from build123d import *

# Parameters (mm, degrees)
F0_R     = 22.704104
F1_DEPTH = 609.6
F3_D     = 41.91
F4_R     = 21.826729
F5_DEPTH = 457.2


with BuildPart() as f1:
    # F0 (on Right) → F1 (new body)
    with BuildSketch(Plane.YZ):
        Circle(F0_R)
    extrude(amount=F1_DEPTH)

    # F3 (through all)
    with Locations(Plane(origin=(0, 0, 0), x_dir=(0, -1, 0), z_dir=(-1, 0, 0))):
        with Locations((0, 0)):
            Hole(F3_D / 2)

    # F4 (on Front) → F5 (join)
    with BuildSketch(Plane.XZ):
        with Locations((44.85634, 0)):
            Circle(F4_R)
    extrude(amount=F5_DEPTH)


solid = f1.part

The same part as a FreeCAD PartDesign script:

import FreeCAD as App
import Part
import Sketcher

V = App.Vector
Q = App.Units.Quantity

doc = App.newDocument("Part")
params = doc.addObject("Spreadsheet::Sheet", "Params")
for row, (alias, value) in enumerate([
    ("pad1_length", "24 in"),
    ("sketch2_diameter", "1.65 in"),
    ("hole_diameter", "1.65 in"),
    ("pad2_length", "18 in"),
], start=1):
    params.set(f"A{row}", alias)
    params.set(f"B{row}", "=" + value)
    params.setAlias(f"B{row}", alias)

body = doc.addObject("PartDesign::Body", "Body")

sketch1 = doc.addObject("Sketcher::SketchObject", "Sketch")
body.addObject(sketch1)
sketch1.AttachmentSupport = (doc.YZ_Plane, [""])
sketch1.MapMode = "FlatFace"
sketch1.addGeometry(Part.Circle(V(0, 0, 0), V(0, 0, 1), 23), False)
sketch1.addConstraint([
    Sketcher.Constraint("Coincident", 0, 3, -1, 1),
    Sketcher.Constraint("Diameter", 0, 45.408208),
])
pad1 = doc.addObject("PartDesign::Pad", "Pad")
body.addObject(pad1)
pad1.Profile = sketch1
pad1.setExpression("Length", "Params.pad1_length")

sketch2 = doc.addObject("Sketcher::SketchObject", "Sketch001")
body.addObject(sketch2)
sketch2.AttachmentSupport = (doc.YZ_Plane, [""])
sketch2.MapMode = "FlatFace"
sketch2.addGeometry(Part.Circle(V(0, 0, 0), V(0, 0, 1), 21), False)
sketch2.addConstraint([
    Sketcher.Constraint("Coincident", 0, 3, -1, 1),
    Sketcher.Constraint("Diameter", 0, Q("1.65 in")),
])
sketch2.setExpression("Constraints[1]", "Params.sketch2_diameter")
doc.recompute()
hole = doc.addObject("PartDesign::Hole", "Hole")
body.addObject(hole)
hole.Profile = sketch2
hole.ThreadType = "None"
hole.setExpression("Diameter", "Params.hole_diameter")
hole.DepthType = "ThroughAll"
hole.Reversed = True

sketch3 = doc.addObject("Sketcher::SketchObject", "Sketch002")
body.addObject(sketch3)
sketch3.AttachmentSupport = (doc.XZ_Plane, [""])
sketch3.MapMode = "FlatFace"
sketch3.addGeometry(Part.Circle(V(45, 0, 0), V(0, 0, 1), 22), False)
sketch3.addConstraint([
    Sketcher.Constraint("PointOnObject", 0, 3, -1),
    Sketcher.Constraint("Diameter", 0, 43.653458),
    Sketcher.Constraint("DistanceX", -1, 1, 0, 3, 44.85634),
])
pad2 = doc.addObject("PartDesign::Pad", "Pad001")
body.addObject(pad2)
pad2.Profile = sketch3
pad2.setExpression("Length", "Params.pad2_length")

doc.recompute()
